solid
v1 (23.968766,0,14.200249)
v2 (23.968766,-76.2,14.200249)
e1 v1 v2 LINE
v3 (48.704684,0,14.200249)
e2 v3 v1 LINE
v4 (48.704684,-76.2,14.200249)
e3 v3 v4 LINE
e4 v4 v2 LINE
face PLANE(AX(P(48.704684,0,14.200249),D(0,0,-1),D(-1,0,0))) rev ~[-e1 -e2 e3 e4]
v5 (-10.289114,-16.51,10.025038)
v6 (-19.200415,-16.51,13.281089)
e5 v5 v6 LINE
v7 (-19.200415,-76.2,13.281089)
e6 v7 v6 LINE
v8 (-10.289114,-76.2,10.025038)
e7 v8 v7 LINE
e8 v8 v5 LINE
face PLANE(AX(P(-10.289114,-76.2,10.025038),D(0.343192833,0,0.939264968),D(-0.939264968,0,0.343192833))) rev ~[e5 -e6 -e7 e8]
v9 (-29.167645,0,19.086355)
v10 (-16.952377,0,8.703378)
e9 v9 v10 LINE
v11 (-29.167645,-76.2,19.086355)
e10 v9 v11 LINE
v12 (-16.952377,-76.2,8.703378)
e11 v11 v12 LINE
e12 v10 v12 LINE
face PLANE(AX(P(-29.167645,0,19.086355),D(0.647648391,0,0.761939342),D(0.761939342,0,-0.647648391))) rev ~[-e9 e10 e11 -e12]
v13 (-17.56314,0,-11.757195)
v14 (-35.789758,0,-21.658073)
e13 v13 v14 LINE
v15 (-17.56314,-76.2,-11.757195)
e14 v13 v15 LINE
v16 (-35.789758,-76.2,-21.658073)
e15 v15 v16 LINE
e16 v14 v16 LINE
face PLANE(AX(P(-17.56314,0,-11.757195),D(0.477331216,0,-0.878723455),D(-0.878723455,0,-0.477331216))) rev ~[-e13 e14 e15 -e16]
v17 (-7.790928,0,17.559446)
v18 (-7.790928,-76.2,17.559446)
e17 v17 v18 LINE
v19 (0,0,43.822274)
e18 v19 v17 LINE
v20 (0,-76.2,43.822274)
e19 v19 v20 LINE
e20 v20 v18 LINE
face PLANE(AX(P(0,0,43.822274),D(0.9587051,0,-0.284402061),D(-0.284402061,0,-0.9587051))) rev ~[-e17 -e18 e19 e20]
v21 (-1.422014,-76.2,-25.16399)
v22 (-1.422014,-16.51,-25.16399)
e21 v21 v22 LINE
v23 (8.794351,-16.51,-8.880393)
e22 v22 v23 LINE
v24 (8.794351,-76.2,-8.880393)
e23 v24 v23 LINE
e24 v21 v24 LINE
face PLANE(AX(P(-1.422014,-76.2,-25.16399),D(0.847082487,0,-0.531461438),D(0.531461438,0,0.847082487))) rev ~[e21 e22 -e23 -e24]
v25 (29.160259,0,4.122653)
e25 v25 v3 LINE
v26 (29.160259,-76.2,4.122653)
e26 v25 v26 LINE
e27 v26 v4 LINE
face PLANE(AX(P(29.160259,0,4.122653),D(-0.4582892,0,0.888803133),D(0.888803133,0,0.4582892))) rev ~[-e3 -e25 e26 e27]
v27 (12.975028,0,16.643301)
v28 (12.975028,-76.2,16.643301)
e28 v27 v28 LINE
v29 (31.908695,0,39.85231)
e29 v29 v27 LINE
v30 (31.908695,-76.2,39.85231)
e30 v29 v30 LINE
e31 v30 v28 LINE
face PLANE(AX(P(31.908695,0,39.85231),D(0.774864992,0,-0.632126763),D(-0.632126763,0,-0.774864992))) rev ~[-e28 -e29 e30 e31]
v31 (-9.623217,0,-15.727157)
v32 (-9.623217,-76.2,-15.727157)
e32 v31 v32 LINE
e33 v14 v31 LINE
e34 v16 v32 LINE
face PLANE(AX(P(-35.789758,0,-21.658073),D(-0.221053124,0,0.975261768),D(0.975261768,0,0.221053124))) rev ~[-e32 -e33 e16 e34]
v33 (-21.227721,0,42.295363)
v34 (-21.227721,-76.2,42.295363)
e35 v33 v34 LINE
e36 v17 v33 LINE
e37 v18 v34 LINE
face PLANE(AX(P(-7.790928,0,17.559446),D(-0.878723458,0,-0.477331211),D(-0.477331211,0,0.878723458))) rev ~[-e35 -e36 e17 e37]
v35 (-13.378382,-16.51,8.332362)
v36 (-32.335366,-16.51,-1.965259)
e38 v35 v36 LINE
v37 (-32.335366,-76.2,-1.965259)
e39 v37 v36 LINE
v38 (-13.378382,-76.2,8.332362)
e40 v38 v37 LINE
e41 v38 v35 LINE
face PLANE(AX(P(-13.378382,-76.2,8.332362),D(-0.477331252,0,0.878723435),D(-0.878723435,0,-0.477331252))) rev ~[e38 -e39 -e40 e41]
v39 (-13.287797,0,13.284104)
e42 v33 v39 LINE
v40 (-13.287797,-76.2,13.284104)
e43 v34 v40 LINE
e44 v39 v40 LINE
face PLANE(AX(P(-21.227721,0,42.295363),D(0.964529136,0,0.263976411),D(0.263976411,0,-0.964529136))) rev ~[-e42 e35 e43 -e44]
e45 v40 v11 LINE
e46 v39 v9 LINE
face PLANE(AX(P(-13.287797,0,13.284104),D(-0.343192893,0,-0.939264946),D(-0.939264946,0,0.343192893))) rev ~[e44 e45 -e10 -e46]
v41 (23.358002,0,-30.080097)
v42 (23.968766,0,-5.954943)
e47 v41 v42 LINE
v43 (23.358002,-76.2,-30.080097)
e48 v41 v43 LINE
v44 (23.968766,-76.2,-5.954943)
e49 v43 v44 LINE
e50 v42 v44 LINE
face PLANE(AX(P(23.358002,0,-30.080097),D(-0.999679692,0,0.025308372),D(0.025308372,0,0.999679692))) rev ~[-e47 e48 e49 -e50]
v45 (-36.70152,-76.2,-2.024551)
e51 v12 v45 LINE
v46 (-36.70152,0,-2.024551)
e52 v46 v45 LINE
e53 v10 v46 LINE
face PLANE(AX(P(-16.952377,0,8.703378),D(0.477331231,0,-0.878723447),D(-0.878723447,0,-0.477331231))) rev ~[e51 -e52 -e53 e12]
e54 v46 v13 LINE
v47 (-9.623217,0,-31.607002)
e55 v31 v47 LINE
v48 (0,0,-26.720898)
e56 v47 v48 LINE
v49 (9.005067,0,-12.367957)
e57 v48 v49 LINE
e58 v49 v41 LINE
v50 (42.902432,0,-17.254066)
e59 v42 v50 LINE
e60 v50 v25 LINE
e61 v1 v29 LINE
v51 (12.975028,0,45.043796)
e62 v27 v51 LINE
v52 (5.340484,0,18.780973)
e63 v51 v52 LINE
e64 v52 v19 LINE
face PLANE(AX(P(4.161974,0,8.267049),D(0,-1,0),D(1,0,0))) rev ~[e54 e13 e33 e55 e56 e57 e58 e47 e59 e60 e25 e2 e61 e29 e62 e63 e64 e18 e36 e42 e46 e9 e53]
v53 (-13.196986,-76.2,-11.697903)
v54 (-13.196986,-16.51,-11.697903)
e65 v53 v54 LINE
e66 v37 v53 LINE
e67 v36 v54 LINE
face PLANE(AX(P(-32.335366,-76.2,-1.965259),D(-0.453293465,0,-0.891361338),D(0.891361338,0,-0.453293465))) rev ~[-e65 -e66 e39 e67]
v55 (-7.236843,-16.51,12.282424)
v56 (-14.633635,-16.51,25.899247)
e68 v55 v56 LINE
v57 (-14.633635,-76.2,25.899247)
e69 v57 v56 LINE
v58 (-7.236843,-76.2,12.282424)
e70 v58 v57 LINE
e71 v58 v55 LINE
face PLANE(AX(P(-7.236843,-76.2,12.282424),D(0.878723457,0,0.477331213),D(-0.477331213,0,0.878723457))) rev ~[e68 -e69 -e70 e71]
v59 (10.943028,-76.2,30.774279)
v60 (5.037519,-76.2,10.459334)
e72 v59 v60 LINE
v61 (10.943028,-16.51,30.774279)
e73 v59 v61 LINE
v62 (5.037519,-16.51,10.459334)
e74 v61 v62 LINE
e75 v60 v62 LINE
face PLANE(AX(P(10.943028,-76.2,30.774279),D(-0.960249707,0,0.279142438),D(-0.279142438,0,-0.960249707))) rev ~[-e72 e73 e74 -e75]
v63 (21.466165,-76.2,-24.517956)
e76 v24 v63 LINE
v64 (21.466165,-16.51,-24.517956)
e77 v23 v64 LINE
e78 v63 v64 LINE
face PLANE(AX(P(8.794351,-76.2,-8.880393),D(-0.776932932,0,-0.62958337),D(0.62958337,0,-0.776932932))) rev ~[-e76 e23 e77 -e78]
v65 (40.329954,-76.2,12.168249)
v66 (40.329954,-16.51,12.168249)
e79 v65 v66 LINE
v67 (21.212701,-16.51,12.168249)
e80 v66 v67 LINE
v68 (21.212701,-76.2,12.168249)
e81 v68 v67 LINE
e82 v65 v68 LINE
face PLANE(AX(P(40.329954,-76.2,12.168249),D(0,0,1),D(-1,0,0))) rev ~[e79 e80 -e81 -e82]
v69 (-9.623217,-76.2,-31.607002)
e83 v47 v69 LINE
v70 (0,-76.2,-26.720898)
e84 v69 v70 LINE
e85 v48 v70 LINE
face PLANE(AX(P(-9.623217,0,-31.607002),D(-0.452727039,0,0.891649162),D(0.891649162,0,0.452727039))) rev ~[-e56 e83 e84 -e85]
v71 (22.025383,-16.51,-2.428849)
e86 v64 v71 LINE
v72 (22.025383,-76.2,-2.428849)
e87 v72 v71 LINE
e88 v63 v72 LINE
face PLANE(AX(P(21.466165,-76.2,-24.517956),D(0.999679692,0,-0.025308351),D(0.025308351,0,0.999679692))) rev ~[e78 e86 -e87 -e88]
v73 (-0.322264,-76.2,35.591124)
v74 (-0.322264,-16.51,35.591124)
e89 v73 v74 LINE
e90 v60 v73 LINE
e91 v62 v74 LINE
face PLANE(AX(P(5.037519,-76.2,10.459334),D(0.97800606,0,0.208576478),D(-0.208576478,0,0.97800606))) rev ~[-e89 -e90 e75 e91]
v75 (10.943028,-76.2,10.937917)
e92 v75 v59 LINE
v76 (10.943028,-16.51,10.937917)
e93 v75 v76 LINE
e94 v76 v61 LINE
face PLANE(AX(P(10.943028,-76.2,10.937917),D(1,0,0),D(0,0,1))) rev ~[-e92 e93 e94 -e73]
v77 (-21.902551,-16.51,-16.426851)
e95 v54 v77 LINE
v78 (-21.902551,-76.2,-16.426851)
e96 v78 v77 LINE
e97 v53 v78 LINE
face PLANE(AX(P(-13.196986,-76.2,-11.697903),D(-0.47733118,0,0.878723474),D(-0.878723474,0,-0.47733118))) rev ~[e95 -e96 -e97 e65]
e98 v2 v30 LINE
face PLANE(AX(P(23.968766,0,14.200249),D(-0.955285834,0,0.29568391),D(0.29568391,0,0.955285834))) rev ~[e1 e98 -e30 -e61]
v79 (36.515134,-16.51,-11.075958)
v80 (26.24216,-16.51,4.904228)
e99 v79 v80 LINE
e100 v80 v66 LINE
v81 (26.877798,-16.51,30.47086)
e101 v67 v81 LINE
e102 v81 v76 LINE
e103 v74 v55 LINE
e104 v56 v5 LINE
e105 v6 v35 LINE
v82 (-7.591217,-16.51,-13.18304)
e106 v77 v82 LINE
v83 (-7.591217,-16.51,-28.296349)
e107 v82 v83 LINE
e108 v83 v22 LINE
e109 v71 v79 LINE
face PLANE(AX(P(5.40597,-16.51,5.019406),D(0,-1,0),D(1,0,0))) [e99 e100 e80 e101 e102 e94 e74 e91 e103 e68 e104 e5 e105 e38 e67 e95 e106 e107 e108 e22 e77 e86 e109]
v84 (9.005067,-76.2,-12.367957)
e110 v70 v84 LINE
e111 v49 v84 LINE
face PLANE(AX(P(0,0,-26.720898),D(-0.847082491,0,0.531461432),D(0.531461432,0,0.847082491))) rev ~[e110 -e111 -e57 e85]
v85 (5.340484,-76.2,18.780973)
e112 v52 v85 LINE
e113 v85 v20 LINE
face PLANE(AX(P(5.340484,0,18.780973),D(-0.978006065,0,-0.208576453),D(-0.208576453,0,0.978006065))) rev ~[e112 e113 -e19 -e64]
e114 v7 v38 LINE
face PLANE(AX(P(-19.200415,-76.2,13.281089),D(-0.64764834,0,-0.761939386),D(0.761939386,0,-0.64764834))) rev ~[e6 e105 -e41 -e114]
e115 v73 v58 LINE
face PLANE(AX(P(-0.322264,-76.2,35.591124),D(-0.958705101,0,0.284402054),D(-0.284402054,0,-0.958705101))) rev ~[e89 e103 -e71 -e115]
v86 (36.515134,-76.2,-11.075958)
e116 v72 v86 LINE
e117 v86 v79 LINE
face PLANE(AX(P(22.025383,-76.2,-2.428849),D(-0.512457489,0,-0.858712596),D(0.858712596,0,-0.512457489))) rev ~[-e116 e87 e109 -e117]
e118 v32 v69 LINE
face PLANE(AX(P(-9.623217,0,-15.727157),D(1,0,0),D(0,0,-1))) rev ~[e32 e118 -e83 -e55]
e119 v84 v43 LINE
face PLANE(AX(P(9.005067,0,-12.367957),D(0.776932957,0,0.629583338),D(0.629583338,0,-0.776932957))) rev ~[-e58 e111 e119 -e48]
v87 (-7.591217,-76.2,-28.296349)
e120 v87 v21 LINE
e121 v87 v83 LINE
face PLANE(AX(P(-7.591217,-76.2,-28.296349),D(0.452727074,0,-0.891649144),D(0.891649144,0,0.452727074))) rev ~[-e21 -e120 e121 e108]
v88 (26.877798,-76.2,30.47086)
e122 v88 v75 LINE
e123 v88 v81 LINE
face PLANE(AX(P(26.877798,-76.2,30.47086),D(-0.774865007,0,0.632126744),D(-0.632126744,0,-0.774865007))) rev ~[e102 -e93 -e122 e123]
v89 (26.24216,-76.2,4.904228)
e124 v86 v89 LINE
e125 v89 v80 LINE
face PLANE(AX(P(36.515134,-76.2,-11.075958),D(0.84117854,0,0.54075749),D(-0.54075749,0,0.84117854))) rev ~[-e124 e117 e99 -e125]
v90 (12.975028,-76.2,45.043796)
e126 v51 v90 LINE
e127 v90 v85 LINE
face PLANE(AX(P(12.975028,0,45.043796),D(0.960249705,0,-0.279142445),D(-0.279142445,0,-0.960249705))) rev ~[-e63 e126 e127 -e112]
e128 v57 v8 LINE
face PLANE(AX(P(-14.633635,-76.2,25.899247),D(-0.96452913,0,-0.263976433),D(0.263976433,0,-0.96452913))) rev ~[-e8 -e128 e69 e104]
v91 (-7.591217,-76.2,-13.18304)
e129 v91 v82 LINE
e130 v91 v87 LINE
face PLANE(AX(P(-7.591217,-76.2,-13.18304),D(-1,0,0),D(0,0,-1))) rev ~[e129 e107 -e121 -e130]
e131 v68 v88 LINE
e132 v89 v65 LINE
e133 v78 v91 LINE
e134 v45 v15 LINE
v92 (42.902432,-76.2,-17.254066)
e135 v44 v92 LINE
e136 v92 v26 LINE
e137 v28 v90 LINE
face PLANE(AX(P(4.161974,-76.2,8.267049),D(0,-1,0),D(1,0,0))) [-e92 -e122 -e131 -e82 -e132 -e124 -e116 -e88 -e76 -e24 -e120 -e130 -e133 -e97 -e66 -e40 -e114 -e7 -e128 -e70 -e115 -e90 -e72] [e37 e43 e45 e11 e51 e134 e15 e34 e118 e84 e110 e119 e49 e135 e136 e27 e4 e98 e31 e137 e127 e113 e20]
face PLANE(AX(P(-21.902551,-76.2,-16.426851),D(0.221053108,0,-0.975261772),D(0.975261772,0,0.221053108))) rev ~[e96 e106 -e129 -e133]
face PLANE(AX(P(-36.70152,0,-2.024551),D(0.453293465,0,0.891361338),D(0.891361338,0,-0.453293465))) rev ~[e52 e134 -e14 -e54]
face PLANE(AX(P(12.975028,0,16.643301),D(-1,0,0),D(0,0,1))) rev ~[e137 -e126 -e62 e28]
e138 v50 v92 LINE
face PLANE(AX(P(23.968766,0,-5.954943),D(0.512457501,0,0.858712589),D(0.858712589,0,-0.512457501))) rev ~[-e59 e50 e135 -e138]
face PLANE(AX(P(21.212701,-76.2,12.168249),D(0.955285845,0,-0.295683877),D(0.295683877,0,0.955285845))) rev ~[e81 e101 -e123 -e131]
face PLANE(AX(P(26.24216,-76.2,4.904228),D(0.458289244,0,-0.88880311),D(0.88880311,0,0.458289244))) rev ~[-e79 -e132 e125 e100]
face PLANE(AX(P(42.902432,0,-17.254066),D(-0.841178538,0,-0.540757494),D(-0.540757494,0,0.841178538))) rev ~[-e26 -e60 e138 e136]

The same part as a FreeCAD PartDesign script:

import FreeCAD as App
import Part
import Sketcher
Q = App.Units.Quantity


def add_polygon(sketch, points):
    """Adds a closed chain of lines whose ends are joined by coincident constraints."""
    first, n = sketch.GeometryCount, len(points)
    for a, b in zip(points, points[1:] + points[:1]):
        sketch.addGeometry(Part.LineSegment(App.Vector(*a, 0), App.Vector(*b, 0)), False)
    for i in range(n):
        sketch.addConstraint(Sketcher.Constraint("Coincident", first + i, 2, first + (i + 1) % n, 1))

doc = App.newDocument("Part")
body = doc.addObject("PartDesign::Body", "Body")

# Sketch on XZ plane
sketch1 = doc.addObject("Sketcher::SketchObject", "Sketch")
body.addObject(sketch1)
sketch1.AttachmentSupport = (doc.XZ_Plane, [""])
sketch1.MapMode = "FlatFace"
add_polygon(sketch1, [(-9.623217, -31.607002), (0, -26.720898), (9.005067, -12.367957), (23.358002, -30.080097), (23.968766, -5.954943), (42.902432, -17.254066), (29.160259, 4.122653), (48.704684, 14.200249), (23.968766, 14.200249), (31.908695, 39.85231), (12.975028, 16.643301), (12.975028, 45.043796), (5.340484, 18.780973), (0, 43.822274), (-7.790928, 17.559446), (-21.227721, 42.295363), (-13.287797, 13.284104), (-29.167645, 19.086355), (-16.952377, 8.703378), (-36.70152, -2.024551), (-17.56314, -11.757195), (-35.789758, -21.658073), (-9.623217, -15.727157)])  # lines 0-22
sketch1.addConstraint(Sketcher.Constraint("Horizontal", 7))
sketch1.addConstraint(Sketcher.Constraint("Vertical", 10))
sketch1.addConstraint(Sketcher.Constraint("Vertical", 22))
sketch1.addConstraint(Sketcher.Constraint("PointOnObject", 0, 2, -2))
sketch1.addConstraint(Sketcher.Constraint("PointOnObject", 12, 2, -2))
sketch1.addConstraint(Sketcher.Constraint("Perpendicular", 14, 18))
sketch1.addConstraint(Sketcher.Constraint("Parallel", 18, 20))
sketch1.addConstraint(Sketcher.Constraint("Vertical", 3, 2, 7, 2))
sketch1.addConstraint(Sketcher.Constraint("DistanceX", 18, 2, 15, 2, Q("0.9218001 in")))
sketch1.addConstraint(Sketcher.Constraint("Distance", 6, Q("21.9896 mm")))
sketch1.addConstraint(Sketcher.Constraint("DistanceX", 7, 2, 7, 1, Q("24.735918 mm")))
sketch1.addConstraint(Sketcher.Constraint("DistanceX", -1, 1, 2, 2, Q("23.358002 mm")))
sketch1.addConstraint(Sketcher.Constraint("DistanceY", -1, 1, 9, 2, Q("16.643301 mm")))
sketch1.addConstraint(Sketcher.Constraint("DistanceY", 2, 2, 0, 2, Q("3.359199 mm")))
sketch1.addConstraint(Sketcher.Constraint("DistanceX", 1, 2, 3, 2, Q("14.963699 mm")))
sketch1.addConstraint(Sketcher.Constraint("DistanceY", 11, 2, 12, 2, Q("25.041301 mm")))
sketch1.addConstraint(Sketcher.Constraint("DistanceY", 19, 2, 15, 2, Q("25.041299 mm")))
sketch1.addConstraint(Sketcher.Constraint("DistanceY", 21, 2, 1, 2, Q("3.3592 mm")))
sketch1.addConstraint(Sketcher.Constraint("Distance", 1, Q("16.943971 mm")))
sketch1.addConstraint(Sketcher.Constraint("Distance", 5, Q("25.41282 mm")))
sketch1.addConstraint(Sketcher.Constraint("Distance", 8, Q("26.85276 mm")))
sketch1.addConstraint(Sketcher.Constraint("Distance", 14, Q("28.149831 mm")))
sketch1.addConstraint(Sketcher.Constraint("Distance", 17, Q("16.031812 mm")))
sketch1.addConstraint(Sketcher.Constraint("Distance", 18, Q("22.474811 mm")))
sketch1.addConstraint(Sketcher.Constraint("DistanceY", 10, 1, 10, 2, Q("28.400495 mm")))
sketch1.addConstraint(Sketcher.Constraint("DistanceY", 22, 2, 22, 1, Q("15.879845 mm")))
sketch1.addConstraint(Sketcher.Constraint("DistanceX", -1, 1, 4, 2, Q("42.902432 mm")))
sketch1.addConstraint(Sketcher.Constraint("DistanceX", -1, 1, 5, 2, Q("29.160259 mm")))
sketch1.addConstraint(Sketcher.Constraint("DistanceY", -1, 1, 6, 2, Q("14.200249 mm")))
sketch1.addConstraint(Sketcher.Constraint("DistanceY", -1, 1, 8, 2, Q("39.85231 mm")))
sketch1.addConstraint(Sketcher.Constraint("DistanceX", 14, 2, -1, 1, Q("21.227721 mm")))
sketch1.addConstraint(Sketcher.Constraint("DistanceY", -1, 1, 17, 2, Q("8.703378 mm")))
sketch1.addConstraint(Sketcher.Constraint("DistanceX", 18, 2, -1, 1, Q("36.70152 mm")))
sketch1.addConstraint(Sketcher.Constraint("DistanceY", 18, 2, -1, 1, Q("2.024551 mm")))
sketch1.addConstraint(Sketcher.Constraint("DistanceX", 19, 2, -1, 1, Q("17.56314 mm")))
sketch1.addConstraint(Sketcher.Constraint("DistanceY", 0, 2, 1, 2, Q("14.352941 mm")))
sketch1.addConstraint(Sketcher.Constraint("DistanceY", 2, 2, 4, 2, Q("12.826031 mm")))
sketch1.addConstraint(Sketcher.Constraint("DistanceY", 3, 2, 6, 2, Q("20.155192 mm")))
sketch1.addConstraint(Sketcher.Constraint("DistanceX", 9, 2, 5, 2, Q("16.185231 mm")))
sketch1.addConstraint(Sketcher.Constraint("DistanceY", 9, 2, 11, 2, Q("2.137672 mm")))
sketch1.addConstraint(Sketcher.Constraint("DistanceX", 11, 2, 7, 2, Q("18.628282 mm")))
sketch1.addConstraint(Sketcher.Constraint("DistanceY", 14, 2, 12, 2, Q("1.526911 mm")))
sketch1.addConstraint(Sketcher.Constraint("DistanceY", 15, 2, 11, 2, Q("5.496869 mm")))
sketch1.addConstraint(Sketcher.Constraint("DistanceX", 16, 2, 15, 2, Q("15.879848 mm")))
sketch1.addConstraint(Sketcher.Constraint("DistanceY", 20, 2, 19, 2, Q("9.900878 mm")))
sketch1.addConstraint(Sketcher.Constraint("DistanceX", 17, 2, 21, 2, Q("7.32916 mm")))
pad1 = doc.addObject("PartDesign::Pad", "Pad")
body.addObject(pad1)
pad1.Profile = sketch1
pad1.Length = Q("3 in")

# Sketch on XZ plane
sketch2 = doc.addObject("Sketcher::SketchObject", "Sketch001")
body.addObject(sketch2)
sketch2.AttachmentSupport = (doc.XZ_Plane, [""])
sketch2.MapMode = "FlatFace"
sketch2.AttachmentOffset = App.Placement(App.Vector(0, 0, 3 * 25.4), App.Rotation())
add_polygon(sketch2, [(21.212701, 12.168249), (26.877798, 30.47086), (10.943028, 10.937917), (10.943028, 30.774279), (5.037519, 10.459334), (-0.322264, 35.591124), (-7.236843, 12.282424), (-14.633635, 25.899247), (-10.289114, 10.025038), (-19.200415, 13.281089), (-13.378382, 8.332362), (-32.335366, -1.965259), (-13.196986, -11.697903), (-21.902551, -16.426851), (-7.591217, -13.18304), (-7.591217, -28.296349), (-1.422014, -25.16399), (8.794351, -8.880393), (21.466165, -24.517956), (22.025383, -2.428849), (36.515134, -11.075958), (26.24216, 4.904228), (40.329954, 12.168249)])  # lines 0-22
sketch2.addConstraint(Sketcher.Constraint("Vertical", 2))
sketch2.addConstraint(Sketcher.Constraint("Vertical", 14))
sketch2.addConstraint(Sketcher.Constraint("Horizontal", 22))
sketch2.addConstraint(Sketcher.Constraint("Perpendicular", 6, 10))
sketch2.addConstraint(Sketcher.Constraint("Parallel", 10, 12))
sketch2.addConstraint(Sketcher.Constraint("Distance", 3, Q("21.155898 mm")))
sketch2.addConstraint(Sketcher.Constraint("Distance", 17, Q("20.127301 mm")))
sketch2.addConstraint(Sketcher.Constraint("DistanceY", 14, 2, 14, 1, Q("15.113309 mm")))
sketch2.addConstraint(Sketcher.Constraint("DistanceX", -1, 1, 22, 2, Q("21.212701 mm")))
sketch2.addConstraint(Sketcher.Constraint("DistanceY", 5, 2, 4, 2, Q("23.3087 mm")))
sketch2.addConstraint(Sketcher.Constraint("DistanceX", 8, 2, 7, 2, Q("8.911301 mm")))
sketch2.addConstraint(Sketcher.Constraint("DistanceX", 9, 2, 3, 2, Q("18.415901 mm")))
sketch2.addConstraint(Sketcher.Constraint("DistanceX", 13, 2, 18, 2, Q("29.6166 mm")))
sketch2.addConstraint(Sketcher.Constraint("DistanceY", 17, 2, 19, 2, Q("13.441998 mm")))
sketch2.addConstraint(Sketcher.Constraint("Distance", 1, Q("25.208188 mm")))
sketch2.addConstraint(Sketcher.Constraint("Distance", 5, Q("24.31269 mm")))
sketch2.addConstraint(Sketcher.Constraint("Distance", 6, Q("15.496141 mm")))
sketch2.addConstraint(Sketcher.Constraint("Distance", 7, Q("16.457988 mm")))
sketch2.addConstraint(Sketcher.Constraint("Distance", 9, Q("7.641071 mm")))
sketch2.addConstraint(Sketcher.Constraint("Distance", 12, Q("9.907059 mm")))
sketch2.addConstraint(Sketcher.Constraint("Distance", 13, Q("14.674351 mm")))
sketch2.addConstraint(Sketcher.Constraint("Distance", 15, Q("6.918868 mm")))
sketch2.addConstraint(Sketcher.Constraint("DistanceX", 22, 2, 22, 1, Q("19.117253 mm")))
sketch2.addConstraint(Sketcher.Constraint("DistanceY", 2, 1, 2, 2, Q("19.836362 mm")))
sketch2.addConstraint(Sketcher.Constraint("DistanceY", -1, 1, 0, 2, Q("30.47086 mm")))
sketch2.addConstraint(Sketcher.Constraint("DistanceY", -1, 1, 2, 2, Q("30.774279 mm")))
sketch2.addConstraint(Sketcher.Constraint("DistanceX", -1, 1, 3, 2, Q("5.037519 mm")))
sketch2.addConstraint(Sketcher.Constraint("DistanceY", -1, 1, 8, 2, Q("13.281089 mm")))
sketch2.addConstraint(Sketcher.Constraint("DistanceY", 10, 2, -1, 1, Q("1.965259 mm")))
sketch2.addConstraint(Sketcher.Constraint("DistanceX", 12, 2, -1, 1, Q("21.902551 mm")))
sketch2.addConstraint(Sketcher.Constraint("DistanceY", 12, 2, -1, 1, Q("16.426851 mm")))
sketch2.addConstraint(Sketcher.Constraint("DistanceY", 13, 2, -1, 1, Q("13.18304 mm")))
sketch2.addConstraint(Sketcher.Constraint("DistanceY", 15, 2, -1, 1, Q("25.16399 mm")))
sketch2.addConstraint(Sketcher.Constraint("DistanceX", -1, 1, 16, 2, Q("8.794351 mm")))
sketch2.addConstraint(Sketcher.Constraint("DistanceY", 18, 2, -1, 1, Q("2.428849 mm")))
sketch2.addConstraint(Sketcher.Constraint("DistanceX", -1, 1, 20, 2, Q("26.24216 mm")))
sketch2.addConstraint(Sketcher.Constraint("DistanceY", -1, 1, 21, 2, Q("12.168249 mm")))
sketch2.addConstraint(Sketcher.Constraint("DistanceX", 3, 2, 1, 2, Q("5.905509 mm")))
sketch2.addConstraint(Sketcher.Constraint("DistanceY", 3, 2, 4, 2, Q("25.13179 mm")))
sketch2.addConstraint(Sketcher.Constraint("DistanceX", 4, 2, 0, 2, Q("27.200062 mm")))
sketch2.addConstraint(Sketcher.Constraint("DistanceX", 6, 2, 5, 2, Q("7.396792 mm")))
sketch2.addConstraint(Sketcher.Constraint("DistanceX", 7, 2, 5, 2, Q("3.052271 mm")))
sketch2.addConstraint(Sketcher.Constraint("DistanceY", 16, 2, 1, 2, Q("19.81831 mm")))
sketch2.addConstraint(Sketcher.Constraint("DistanceX", 15, 2, 17, 2, Q("22.888179 mm")))
sketch2.addConstraint(Sketcher.Constraint("DistanceX", 18, 2, 19, 2, Q("14.489751 mm")))
sketch2.addConstraint(Sketcher.Constraint("DistanceY", 20, 2, 1, 2, Q("6.033689 mm")))
pocket1 = doc.addObject("PartDesign::Pocket", "Pocket")
body.addObject(pocket1)
pocket1.Profile = sketch2
pocket1.Length = Q("2.35 in")

doc.recompute()
